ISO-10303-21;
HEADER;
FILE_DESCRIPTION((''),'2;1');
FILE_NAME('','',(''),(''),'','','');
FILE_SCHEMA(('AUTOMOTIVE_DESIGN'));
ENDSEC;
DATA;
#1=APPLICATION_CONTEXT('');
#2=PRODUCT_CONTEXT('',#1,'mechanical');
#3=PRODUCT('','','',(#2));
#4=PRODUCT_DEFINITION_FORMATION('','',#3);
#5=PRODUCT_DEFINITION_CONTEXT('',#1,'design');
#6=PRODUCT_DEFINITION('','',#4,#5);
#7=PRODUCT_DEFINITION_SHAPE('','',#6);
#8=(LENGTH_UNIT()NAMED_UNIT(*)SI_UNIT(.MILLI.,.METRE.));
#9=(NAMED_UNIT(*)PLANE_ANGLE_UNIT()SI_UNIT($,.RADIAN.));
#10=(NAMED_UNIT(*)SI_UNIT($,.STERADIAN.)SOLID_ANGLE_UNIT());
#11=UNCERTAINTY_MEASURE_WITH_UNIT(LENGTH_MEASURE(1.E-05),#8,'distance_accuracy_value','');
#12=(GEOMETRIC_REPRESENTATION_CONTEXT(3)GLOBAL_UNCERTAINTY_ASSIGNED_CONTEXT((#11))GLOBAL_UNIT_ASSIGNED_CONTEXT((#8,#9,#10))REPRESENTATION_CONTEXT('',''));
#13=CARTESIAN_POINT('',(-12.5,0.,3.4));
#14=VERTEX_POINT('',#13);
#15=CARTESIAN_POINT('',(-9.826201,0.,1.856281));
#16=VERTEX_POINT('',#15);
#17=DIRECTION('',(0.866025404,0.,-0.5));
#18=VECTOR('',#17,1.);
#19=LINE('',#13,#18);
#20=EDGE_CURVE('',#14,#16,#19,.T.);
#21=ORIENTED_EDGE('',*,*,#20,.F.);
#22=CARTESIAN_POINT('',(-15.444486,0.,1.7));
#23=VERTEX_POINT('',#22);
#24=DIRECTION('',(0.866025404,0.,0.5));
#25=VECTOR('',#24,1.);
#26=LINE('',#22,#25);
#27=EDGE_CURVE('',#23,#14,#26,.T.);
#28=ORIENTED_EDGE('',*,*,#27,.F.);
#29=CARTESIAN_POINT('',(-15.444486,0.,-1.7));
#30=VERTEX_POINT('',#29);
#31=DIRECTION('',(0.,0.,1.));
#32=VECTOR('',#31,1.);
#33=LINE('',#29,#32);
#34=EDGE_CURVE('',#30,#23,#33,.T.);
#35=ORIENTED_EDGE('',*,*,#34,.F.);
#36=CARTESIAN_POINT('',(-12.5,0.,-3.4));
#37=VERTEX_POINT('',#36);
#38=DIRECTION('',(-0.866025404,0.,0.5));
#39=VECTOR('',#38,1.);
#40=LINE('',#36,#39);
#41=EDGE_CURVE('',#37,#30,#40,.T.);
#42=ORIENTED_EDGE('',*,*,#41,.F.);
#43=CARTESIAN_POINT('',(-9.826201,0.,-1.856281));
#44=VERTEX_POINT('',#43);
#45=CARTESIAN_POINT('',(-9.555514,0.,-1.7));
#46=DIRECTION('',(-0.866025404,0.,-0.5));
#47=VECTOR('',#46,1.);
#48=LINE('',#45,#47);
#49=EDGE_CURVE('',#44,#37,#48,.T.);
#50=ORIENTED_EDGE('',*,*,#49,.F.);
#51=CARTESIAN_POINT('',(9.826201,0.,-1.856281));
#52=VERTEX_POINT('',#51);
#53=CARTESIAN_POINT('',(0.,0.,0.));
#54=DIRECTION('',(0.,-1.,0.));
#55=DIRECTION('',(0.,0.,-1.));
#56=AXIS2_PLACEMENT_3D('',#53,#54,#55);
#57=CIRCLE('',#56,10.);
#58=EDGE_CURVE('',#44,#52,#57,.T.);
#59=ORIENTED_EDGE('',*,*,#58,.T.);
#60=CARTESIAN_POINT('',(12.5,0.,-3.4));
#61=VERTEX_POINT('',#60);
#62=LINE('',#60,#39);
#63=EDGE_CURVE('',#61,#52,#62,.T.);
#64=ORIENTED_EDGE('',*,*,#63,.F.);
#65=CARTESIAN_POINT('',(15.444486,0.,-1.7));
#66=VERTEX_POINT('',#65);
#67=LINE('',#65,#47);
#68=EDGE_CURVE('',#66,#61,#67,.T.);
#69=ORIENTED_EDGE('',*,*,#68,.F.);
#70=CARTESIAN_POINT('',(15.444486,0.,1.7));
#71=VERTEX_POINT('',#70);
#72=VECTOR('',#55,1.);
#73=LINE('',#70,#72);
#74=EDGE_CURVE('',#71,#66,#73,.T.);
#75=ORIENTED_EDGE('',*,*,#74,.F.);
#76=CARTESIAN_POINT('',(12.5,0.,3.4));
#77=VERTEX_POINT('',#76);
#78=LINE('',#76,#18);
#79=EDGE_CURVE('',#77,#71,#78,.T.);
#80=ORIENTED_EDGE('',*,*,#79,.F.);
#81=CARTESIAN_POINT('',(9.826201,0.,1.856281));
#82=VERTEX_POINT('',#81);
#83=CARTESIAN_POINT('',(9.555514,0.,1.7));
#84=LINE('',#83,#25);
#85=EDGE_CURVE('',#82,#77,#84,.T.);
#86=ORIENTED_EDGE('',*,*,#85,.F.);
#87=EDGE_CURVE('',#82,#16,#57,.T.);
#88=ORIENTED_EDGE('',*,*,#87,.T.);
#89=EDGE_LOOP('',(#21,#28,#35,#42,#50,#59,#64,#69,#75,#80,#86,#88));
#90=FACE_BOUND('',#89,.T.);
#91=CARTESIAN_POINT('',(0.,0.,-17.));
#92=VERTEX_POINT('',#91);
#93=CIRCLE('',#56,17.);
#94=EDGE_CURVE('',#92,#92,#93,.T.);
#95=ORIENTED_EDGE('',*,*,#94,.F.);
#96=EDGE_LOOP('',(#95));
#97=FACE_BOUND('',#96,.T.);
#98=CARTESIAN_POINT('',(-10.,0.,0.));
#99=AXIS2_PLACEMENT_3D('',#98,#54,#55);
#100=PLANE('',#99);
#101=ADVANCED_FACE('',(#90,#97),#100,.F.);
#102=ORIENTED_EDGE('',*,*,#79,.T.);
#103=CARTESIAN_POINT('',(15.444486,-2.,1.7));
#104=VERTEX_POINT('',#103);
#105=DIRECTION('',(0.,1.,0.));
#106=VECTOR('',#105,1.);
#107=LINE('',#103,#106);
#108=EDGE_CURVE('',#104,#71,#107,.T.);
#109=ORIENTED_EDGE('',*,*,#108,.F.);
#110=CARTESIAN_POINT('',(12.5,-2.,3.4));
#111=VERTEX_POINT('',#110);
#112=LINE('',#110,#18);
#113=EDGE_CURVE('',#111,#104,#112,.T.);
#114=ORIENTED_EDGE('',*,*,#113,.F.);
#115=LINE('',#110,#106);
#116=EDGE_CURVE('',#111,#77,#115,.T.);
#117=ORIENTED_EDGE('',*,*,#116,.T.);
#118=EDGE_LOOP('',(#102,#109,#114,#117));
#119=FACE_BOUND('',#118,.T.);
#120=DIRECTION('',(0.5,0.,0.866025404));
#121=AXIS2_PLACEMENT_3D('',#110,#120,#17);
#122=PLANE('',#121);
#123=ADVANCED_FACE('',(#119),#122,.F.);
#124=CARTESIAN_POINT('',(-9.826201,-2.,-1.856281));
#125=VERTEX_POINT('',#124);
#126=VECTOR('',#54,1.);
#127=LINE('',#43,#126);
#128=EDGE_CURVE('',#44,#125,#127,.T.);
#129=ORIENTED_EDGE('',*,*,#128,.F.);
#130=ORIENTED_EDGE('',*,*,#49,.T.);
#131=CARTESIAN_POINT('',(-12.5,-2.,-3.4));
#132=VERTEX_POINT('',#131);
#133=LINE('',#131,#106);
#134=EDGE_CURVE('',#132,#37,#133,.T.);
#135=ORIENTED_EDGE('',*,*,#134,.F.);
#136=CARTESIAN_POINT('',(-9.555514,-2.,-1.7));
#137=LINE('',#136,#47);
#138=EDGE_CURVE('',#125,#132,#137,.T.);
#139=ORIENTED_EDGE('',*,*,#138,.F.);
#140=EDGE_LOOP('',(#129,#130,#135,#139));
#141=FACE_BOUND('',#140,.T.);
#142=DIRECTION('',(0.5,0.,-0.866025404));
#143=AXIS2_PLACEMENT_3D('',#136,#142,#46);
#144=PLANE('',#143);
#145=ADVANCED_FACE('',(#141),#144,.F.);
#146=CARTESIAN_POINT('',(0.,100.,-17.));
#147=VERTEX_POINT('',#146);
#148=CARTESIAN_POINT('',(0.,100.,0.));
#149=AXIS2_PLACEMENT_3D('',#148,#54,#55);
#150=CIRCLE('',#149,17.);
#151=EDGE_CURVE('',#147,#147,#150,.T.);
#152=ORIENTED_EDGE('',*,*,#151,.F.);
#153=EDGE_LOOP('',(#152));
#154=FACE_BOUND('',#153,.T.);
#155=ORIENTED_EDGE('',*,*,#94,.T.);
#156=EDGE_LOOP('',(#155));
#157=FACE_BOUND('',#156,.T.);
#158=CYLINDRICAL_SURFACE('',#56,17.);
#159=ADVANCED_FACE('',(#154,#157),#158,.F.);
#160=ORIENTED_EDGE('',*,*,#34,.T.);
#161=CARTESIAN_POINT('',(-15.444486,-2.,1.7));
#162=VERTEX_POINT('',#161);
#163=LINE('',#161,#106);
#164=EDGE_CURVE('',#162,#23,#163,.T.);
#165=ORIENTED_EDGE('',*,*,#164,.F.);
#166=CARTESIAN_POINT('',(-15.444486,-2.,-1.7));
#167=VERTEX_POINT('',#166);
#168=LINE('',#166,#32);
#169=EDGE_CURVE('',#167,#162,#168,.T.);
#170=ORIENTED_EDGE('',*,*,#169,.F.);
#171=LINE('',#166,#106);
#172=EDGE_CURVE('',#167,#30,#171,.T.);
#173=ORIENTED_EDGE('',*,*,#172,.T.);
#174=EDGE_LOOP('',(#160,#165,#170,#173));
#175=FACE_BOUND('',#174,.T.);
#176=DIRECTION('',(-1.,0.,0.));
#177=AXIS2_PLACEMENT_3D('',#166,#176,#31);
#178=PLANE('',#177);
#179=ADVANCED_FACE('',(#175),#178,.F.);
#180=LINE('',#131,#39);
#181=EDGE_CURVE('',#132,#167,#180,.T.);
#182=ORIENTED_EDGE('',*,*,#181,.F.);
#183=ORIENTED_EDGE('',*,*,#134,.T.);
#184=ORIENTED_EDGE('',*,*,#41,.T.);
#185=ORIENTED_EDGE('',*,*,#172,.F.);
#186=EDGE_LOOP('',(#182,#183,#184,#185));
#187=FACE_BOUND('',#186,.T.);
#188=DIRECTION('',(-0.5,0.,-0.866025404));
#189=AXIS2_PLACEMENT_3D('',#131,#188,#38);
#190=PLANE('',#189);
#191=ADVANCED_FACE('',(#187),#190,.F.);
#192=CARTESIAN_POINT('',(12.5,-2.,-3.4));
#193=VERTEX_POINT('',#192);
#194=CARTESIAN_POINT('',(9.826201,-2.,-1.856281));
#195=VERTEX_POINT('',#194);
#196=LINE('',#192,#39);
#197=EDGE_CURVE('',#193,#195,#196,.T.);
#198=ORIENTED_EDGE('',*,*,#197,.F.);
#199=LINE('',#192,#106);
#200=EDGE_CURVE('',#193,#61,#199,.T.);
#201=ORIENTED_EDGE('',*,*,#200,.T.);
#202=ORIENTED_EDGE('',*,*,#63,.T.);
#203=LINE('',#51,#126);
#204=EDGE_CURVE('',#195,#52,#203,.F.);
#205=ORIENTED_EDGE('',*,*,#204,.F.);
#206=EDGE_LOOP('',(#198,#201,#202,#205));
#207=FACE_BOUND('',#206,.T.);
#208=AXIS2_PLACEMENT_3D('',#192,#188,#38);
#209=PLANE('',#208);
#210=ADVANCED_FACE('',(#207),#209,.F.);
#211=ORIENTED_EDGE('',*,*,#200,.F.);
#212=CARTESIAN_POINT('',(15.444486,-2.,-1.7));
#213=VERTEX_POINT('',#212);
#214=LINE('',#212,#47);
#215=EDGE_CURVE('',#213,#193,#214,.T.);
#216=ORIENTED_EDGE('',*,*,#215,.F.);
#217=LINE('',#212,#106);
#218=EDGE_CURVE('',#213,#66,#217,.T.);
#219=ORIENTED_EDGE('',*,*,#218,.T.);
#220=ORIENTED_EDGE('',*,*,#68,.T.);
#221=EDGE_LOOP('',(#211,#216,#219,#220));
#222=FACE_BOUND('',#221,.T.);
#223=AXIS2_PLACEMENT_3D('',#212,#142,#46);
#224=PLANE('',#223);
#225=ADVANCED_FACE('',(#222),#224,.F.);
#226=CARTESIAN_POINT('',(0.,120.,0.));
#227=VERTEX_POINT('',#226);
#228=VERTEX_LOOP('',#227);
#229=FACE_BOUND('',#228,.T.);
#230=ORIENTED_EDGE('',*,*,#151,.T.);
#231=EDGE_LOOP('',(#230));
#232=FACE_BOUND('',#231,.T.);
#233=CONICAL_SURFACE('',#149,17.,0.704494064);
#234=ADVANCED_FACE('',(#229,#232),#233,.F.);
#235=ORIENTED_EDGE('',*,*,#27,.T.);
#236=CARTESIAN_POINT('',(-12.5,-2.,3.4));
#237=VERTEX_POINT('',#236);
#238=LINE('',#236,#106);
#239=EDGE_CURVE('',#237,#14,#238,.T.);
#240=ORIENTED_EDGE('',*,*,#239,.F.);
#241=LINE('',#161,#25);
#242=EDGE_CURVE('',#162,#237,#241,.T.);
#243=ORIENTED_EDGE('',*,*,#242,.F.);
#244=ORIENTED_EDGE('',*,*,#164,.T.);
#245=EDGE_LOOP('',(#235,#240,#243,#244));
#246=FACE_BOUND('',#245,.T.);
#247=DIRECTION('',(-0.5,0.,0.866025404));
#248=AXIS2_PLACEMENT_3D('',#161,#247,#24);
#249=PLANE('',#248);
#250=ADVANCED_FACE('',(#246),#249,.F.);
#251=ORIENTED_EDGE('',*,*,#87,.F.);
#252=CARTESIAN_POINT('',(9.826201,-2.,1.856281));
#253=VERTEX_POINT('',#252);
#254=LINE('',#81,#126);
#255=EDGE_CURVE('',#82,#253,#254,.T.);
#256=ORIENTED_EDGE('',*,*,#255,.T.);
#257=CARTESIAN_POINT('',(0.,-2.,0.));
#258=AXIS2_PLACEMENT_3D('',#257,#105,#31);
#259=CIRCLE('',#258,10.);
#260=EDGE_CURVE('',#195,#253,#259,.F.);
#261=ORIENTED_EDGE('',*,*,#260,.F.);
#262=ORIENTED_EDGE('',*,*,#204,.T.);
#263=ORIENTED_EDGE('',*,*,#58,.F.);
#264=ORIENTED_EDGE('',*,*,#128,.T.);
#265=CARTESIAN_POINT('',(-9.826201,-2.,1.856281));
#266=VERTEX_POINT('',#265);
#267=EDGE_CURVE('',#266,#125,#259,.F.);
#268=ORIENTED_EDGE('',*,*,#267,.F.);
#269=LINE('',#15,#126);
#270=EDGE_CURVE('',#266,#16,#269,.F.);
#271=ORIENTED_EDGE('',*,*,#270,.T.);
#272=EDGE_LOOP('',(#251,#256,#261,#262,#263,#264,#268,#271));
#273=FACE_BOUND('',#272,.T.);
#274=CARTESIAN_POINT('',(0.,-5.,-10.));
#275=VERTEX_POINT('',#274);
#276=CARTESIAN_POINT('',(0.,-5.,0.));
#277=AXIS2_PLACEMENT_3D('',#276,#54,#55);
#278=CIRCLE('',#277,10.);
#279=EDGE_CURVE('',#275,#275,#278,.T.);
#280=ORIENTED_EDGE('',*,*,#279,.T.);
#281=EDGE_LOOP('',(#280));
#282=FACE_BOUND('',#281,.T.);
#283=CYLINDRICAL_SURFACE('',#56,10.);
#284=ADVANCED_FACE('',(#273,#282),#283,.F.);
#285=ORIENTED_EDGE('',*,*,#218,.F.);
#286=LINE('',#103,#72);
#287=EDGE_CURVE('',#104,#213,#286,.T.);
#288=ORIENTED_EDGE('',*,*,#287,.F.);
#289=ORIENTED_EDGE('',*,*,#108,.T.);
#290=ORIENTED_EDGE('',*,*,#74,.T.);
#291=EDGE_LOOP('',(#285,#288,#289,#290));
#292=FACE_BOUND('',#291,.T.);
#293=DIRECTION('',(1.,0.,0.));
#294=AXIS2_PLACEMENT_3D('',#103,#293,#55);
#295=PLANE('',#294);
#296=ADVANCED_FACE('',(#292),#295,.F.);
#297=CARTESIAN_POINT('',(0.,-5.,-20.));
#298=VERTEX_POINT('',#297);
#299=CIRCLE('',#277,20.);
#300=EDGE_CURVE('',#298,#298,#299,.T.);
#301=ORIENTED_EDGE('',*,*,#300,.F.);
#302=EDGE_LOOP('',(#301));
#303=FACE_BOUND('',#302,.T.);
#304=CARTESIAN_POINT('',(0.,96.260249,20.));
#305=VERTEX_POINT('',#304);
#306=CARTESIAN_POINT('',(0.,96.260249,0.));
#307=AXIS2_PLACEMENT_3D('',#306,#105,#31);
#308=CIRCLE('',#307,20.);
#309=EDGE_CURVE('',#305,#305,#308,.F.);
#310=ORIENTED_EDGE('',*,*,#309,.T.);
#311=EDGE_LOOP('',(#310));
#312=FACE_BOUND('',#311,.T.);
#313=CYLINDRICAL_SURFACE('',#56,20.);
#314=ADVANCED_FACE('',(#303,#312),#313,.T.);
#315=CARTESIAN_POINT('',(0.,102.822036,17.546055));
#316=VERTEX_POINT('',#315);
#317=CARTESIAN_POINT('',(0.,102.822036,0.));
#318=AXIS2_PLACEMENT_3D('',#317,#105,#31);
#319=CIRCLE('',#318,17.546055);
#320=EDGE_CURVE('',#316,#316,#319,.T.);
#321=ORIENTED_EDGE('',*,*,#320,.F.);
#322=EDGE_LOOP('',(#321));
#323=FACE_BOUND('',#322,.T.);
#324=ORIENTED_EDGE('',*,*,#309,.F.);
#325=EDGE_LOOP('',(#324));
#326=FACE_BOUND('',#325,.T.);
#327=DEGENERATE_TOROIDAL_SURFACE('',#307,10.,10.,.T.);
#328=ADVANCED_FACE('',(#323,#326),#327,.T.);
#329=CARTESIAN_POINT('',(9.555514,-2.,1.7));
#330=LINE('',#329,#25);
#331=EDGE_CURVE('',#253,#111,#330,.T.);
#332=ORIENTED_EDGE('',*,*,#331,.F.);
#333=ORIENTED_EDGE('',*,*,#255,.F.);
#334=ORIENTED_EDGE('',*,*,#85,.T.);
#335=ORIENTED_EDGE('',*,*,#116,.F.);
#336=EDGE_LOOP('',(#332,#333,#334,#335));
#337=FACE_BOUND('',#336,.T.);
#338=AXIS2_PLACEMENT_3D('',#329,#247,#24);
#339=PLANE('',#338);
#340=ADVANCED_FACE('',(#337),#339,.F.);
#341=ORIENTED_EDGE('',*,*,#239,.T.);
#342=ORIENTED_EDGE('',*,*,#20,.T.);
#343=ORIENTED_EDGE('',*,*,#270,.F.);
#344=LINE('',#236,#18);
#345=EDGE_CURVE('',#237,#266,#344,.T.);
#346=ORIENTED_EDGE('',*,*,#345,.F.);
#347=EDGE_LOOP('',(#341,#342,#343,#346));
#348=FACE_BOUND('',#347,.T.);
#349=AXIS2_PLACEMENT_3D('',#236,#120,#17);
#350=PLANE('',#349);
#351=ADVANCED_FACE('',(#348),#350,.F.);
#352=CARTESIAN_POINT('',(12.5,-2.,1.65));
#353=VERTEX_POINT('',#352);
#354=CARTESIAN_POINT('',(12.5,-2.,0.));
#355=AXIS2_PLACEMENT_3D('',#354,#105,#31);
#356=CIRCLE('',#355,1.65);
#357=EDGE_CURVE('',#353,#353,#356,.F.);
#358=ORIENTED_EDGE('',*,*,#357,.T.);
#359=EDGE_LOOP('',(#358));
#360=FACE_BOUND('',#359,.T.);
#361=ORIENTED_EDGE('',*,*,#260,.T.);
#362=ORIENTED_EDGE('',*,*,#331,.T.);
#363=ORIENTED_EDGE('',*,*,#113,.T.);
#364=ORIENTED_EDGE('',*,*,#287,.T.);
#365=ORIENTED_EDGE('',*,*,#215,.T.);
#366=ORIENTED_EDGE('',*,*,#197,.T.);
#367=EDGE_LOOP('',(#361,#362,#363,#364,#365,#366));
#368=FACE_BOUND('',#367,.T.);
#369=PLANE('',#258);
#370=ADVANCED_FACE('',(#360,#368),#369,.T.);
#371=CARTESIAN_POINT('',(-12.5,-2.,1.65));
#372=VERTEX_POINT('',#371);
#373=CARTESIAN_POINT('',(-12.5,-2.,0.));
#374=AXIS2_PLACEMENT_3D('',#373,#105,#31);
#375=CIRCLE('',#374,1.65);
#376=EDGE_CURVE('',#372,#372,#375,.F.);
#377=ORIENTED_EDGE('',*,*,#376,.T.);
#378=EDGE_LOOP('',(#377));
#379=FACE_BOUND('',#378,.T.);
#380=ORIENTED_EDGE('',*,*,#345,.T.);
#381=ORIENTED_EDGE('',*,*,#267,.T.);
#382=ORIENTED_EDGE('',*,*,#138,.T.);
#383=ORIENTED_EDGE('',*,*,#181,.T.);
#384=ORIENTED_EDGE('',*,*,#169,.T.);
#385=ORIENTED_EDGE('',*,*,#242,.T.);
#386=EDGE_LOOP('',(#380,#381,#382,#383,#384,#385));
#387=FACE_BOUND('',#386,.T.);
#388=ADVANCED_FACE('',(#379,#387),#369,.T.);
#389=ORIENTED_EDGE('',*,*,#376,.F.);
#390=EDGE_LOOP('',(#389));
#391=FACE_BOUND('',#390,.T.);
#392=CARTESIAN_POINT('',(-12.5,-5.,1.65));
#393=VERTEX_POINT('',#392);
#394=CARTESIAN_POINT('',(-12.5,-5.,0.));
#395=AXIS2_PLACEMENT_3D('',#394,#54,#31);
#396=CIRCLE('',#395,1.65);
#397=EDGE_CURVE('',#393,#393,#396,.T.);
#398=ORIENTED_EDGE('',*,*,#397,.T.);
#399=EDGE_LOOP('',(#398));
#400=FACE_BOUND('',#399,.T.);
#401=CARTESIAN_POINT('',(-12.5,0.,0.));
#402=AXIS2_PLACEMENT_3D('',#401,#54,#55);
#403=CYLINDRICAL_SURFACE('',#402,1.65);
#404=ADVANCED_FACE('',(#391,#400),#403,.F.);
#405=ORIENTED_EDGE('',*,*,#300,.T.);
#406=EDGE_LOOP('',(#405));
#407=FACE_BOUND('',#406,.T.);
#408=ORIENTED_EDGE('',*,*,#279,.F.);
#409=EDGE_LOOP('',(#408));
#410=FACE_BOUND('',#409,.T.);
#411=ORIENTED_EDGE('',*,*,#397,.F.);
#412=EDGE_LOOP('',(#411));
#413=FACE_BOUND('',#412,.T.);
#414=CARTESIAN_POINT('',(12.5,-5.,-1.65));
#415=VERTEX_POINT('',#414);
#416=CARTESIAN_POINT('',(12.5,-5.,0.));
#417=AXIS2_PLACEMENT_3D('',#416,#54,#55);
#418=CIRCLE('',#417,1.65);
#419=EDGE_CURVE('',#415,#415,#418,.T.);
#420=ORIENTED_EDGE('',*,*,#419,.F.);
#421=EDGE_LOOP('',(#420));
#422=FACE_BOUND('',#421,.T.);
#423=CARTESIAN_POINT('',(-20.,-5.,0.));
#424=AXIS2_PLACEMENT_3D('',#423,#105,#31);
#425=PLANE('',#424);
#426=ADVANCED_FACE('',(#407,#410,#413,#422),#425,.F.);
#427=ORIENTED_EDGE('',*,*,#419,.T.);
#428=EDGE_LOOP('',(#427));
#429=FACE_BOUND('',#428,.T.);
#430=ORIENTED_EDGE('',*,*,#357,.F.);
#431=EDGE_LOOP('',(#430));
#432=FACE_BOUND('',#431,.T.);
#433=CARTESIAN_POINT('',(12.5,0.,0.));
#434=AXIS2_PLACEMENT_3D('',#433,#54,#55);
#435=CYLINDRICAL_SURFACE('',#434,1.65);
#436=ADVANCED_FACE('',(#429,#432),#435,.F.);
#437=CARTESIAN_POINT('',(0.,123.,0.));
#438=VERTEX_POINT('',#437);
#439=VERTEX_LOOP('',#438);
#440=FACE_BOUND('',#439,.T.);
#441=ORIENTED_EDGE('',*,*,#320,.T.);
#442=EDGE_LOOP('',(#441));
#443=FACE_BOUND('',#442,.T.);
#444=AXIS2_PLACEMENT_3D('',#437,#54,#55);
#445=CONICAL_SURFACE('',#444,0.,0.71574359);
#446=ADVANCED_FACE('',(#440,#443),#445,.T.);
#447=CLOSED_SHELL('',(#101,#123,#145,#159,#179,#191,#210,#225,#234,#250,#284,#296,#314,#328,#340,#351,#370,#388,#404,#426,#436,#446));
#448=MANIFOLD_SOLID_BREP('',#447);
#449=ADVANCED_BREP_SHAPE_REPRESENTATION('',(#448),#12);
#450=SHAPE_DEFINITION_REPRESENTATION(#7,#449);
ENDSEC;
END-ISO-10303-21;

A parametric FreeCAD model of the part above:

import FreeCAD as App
import Part
import Sketcher
Q = App.Units.Quantity


def edges_at(feature, points):
    """Names of the edges that pass closest to the given points."""
    edges = feature.Shape.Edges
    near = lambda p: min(range(len(edges)), key=lambda i: edges[i].distToShape(Part.Vertex(*p))[0])
    return sorted({f"Edge{near(p) + 1}" for p in points})


def add_polygon(sketch, points):
    """Adds a closed chain of lines whose ends are joined by coincident constraints."""
    first, n = sketch.GeometryCount, len(points)
    for a, b in zip(points, points[1:] + points[:1]):
        sketch.addGeometry(Part.LineSegment(App.Vector(*a, 0), App.Vector(*b, 0)), False)
    for i in range(n):
        sketch.addConstraint(Sketcher.Constraint("Coincident", first + i, 2, first + (i + 1) % n, 1))

doc = App.newDocument("Part")
body = doc.addObject("PartDesign::Body", "Body")

# Sketch on XY plane
sketch1 = body.newObject("Sketcher::SketchObject", "Sketch")
sketch1.AttachmentSupport = (doc.getObject("XY_Plane"), [""])
sketch1.MapMode = "FlatFace"
add_polygon(sketch1, [(-20, 100), (-20, -5), (-10, -5), (-10, 0), (-17, 0), (-17, 100), (0, 120), (0, 123)])  # lines 0-7
sketch1.addConstraint([
    Sketcher.Constraint("Vertical", 0),
    Sketcher.Constraint("Horizontal", 1),
    Sketcher.Constraint("Vertical", 2),
    Sketcher.Constraint("Horizontal", 3),
    Sketcher.Constraint("Vertical", 4),
    Sketcher.Constraint("Vertical", 6),
    Sketcher.Constraint("PointOnObject", 2, 2, -1),
    Sketcher.Constraint("PointOnObject", 5, 2, -2),
    Sketcher.Constraint("Horizontal", 4, 2, 7, 2),
    Sketcher.Constraint("DistanceX", 1, 1, 1, 2, 10.0),
    Sketcher.Constraint("DistanceX", 3, 2, 3, 1, 7.0),
    Sketcher.Constraint("DistanceY", 0, 2, 0, 1, 105.0),
    Sketcher.Constraint("DistanceY", 2, 1, 2, 2, 5.0),
    Sketcher.Constraint("DistanceY", 6, 1, 6, 2, 3.0),
    Sketcher.Constraint("DistanceX", 0, 2, -1, 1, 20.0),
    Sketcher.Constraint("DistanceY", -1, 1, 5, 2, 120.0),
])
revolution = body.newObject("PartDesign::Revolution", "Revolution")
revolution.Profile = sketch1
revolution.ReferenceAxis = (sketch1, ["V_Axis"])
revolution.Angle = 360
doc.recompute()

fillet = body.newObject("PartDesign::Fillet", "Fillet")
fillet.Base = (revolution, edges_at(revolution, [(20, 100, 0)]))
fillet.Radius = 10

# Sketch on XZ plane
sketch2 = body.newObject("Sketcher::SketchObject", "Sketch001")
sketch2.AttachmentSupport = (doc.getObject("XZ_Plane"), [""])
sketch2.MapMode = "FlatFace"
sketch2.AttachmentOffset = App.Placement(App.Vector(0, 0, 5), App.Rotation())
sketch2.addGeometry([
    Part.Circle(App.Vector(12.5, 0, 0), App.Vector(0, 0, 1), 1.6),
    Part.Circle(App.Vector(-12.5, 0, 0), App.Vector(0, 0, 1), 1.6),
], False)
sketch2.addConstraint([
    Sketcher.Constraint("Equal", 0, 1),
    Sketcher.Constraint("Symmetric", 0, 3, 1, 3, -1, 1),
    Sketcher.Constraint("PointOnObject", 0, 3, -1),
    Sketcher.Constraint("Diameter", 0, 3.3),
    Sketcher.Constraint("DistanceX", 1, 3, 0, 3, 25.0),
])
pocket1 = body.newObject("PartDesign::Pocket", "Pocket")
pocket1.Profile = sketch2
pocket1.Length = 5

# Sketch on XZ plane
sketch3 = body.newObject("Sketcher::SketchObject", "Sketch002")
sketch3.AttachmentSupport = (doc.getObject("XZ_Plane"), [""])
sketch3.MapMode = "FlatFace"
add_polygon(sketch3, [(-12.5, -3.4), (-15.4, -1.7), (-15.4, 1.7), (-12.5, 3.4), (-9.6, 1.7), (-9.6, -1.7)])  # lines 0-5
add_polygon(sketch3, [(12.5, -3.4), (9.6, -1.7), (9.6, 1.7), (12.5, 3.4), (15.4, 1.7), (15.4, -1.7)])  # lines 6-11
sketch3.addConstraint([
    Sketcher.Constraint("Vertical", 1),
    Sketcher.Constraint("Vertical", 4),
    Sketcher.Constraint("Vertical", 7),
    Sketcher.Constraint("Vertical", 10),
    Sketcher.Constraint("Symmetric", 3, 2, 6, 2, -1, 1),
    Sketcher.Constraint("Symmetric", 5, 2, 8, 2, -1, 1),
    Sketcher.Constraint("Symmetric", 0, 2, 9, 2, -1, 1),
    Sketcher.Constraint("Symmetric", 2, 2, 11, 2, -1, 1),
    Sketcher.Constraint("Symmetric", 2, 2, 8, 2, -2),
    Sketcher.Constraint("Parallel", 0, 3),
    Sketcher.Constraint("Parallel", 2, 5),
    Sketcher.Constraint("Parallel", 5, 8),
    Sketcher.Constraint("Parallel", 8, 11),
    Sketcher.Constraint("Horizontal", 1, 2, 3, 2),
    Sketcher.Constraint("Horizontal", 0, 2, 4, 2),
    Sketcher.Constraint("Angle", 0, Q("150 deg")),
    Sketcher.Constraint("DistanceY", 1, 1, 1, 2, 3.4),
    Sketcher.Constraint("DistanceX", 0, 2, 6, 2, 25.0),
    Sketcher.Constraint("Distance", 0, 3.4),
])
pocket2 = body.newObject("PartDesign::Pocket", "Pocket001")
pocket2.Profile = sketch3
pocket2.Length = 2
pocket2.Reversed = True

doc.recompute()
